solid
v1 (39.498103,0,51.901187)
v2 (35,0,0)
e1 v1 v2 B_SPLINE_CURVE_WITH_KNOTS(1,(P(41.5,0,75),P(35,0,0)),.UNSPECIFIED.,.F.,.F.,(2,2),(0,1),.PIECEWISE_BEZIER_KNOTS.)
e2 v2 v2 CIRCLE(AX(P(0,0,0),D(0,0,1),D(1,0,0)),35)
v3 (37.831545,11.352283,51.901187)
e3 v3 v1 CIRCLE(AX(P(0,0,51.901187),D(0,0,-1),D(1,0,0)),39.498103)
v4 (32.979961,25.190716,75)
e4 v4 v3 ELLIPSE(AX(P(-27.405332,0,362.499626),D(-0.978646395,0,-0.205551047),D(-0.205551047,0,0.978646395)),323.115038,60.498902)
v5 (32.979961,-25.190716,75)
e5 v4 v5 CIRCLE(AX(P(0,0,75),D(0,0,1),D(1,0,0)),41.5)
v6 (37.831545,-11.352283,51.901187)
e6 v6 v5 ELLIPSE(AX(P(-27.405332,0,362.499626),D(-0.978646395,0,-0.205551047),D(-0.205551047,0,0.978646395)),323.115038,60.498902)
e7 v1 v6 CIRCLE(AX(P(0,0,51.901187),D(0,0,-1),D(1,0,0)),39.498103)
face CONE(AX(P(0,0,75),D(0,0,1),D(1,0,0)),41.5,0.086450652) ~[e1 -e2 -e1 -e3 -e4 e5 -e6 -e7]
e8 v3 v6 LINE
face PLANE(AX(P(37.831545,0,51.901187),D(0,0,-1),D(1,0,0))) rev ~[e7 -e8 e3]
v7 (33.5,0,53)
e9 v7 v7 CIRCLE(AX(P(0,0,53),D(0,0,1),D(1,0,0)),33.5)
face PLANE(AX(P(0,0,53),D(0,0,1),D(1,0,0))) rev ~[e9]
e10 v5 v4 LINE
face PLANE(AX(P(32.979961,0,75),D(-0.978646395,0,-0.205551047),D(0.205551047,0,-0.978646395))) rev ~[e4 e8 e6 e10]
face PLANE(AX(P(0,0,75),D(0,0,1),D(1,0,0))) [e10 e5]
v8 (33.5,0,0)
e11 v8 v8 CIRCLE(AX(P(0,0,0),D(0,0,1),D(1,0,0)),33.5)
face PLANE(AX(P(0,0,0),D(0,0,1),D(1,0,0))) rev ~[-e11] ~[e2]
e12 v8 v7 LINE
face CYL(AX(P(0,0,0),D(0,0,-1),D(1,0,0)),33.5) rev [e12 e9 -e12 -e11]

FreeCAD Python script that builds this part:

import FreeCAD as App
import Part
import Sketcher
from FreeCAD import Vector
Q = App.Units.Quantity


def add_polygon(sketch, points):
    """Adds a closed chain of lines whose ends are joined by coincident constraints."""
    first, n = sketch.GeometryCount, len(points)
    for a, b in zip(points, points[1:] + points[:1]):
        sketch.addGeometry(Part.LineSegment(App.Vector(*a, 0), App.Vector(*b, 0)), False)
    for i in range(n):
        sketch.addConstraint(Sketcher.Constraint("Coincident", first + i, 2, first + (i + 1) % n, 1))

doc = App.newDocument("Part")
params = doc.addObject("Spreadsheet::Sheet", "Params")
for row, (alias, value) in enumerate([
    ("sketch1_diameter", "83 mm"),
    ("sketch2_diameter", "70 mm"),
    ("pocket1_length", "55 mm"),
    ("sketch4_diameter", "67 mm"),
    ("pocket2_length", "53 mm"),
], start=1):
    params.set(f"A{row}", alias)
    params.set(f"B{row}", "=" + value)
    params.setAlias(f"B{row}", alias)

body = doc.addObject("PartDesign::Body", "Body")

sketch1 = body.newObject("Sketcher::SketchObject", "Sketch")
sketch1.AttachmentSupport = (doc.getObject("XY_Plane"), [""])
sketch1.MapMode = "FlatFace"
sketch1.AttachmentOffset = App.Placement(Vector(0, 0, 75), App.Rotation())
sketch1.addGeometry(Part.Circle(Vector(0, 0, 0), Vector(0, 0, 1), 41.5), False)
sketch1.addConstraint([
    Sketcher.Constraint("Coincident", 0, 3, -1, 1),
    Sketcher.Constraint("Diameter", 0, Q("83 mm")),
])
sketch1.setExpression("Constraints[1]", "Params.sketch1_diameter")

sketch2 = body.newObject("Sketcher::SketchObject", "Sketch001")
sketch2.AttachmentSupport = (doc.getObject("XY_Plane"), [""])
sketch2.MapMode = "FlatFace"
sketch2.addGeometry(Part.Circle(Vector(0, 0, 0), Vector(0, 0, 1), 35), False)
sketch2.addConstraint([
    Sketcher.Constraint("Coincident", 0, 3, -1, 1),
    Sketcher.Constraint("Diameter", 0, Q("70 mm")),
])
sketch2.setExpression("Constraints[1]", "Params.sketch2_diameter")

additiveloft = body.newObject("PartDesign::AdditiveLoft", "AdditiveLoft")
additiveloft.Profile = sketch1
additiveloft.Sections = [sketch2]

sketch3 = body.newObject("Sketcher::SketchObject", "Sketch002")
sketch3.AttachmentSupport = (doc.getObject("XZ_Plane"), [""])
sketch3.MapMode = "FlatFace"
add_polygon(sketch3, [(32.979961, 75), (37.831545, 51.901187), (40.54823, 51.901187), (42.30484, 75)])
sketch3.addConstraint([
    Sketcher.Constraint("Horizontal", 1),
    Sketcher.Constraint("Horizontal", 3),
    Sketcher.Constraint("DistanceY", -1, 1, 2, 2, Q("75 mm")),
    Sketcher.Constraint("DistanceX", 3, 2, 3, 1, Q("9.324879 mm")),
    Sketcher.Constraint("Distance", 0, Q("23.602818 mm")),
    Sketcher.Constraint("Distance", 2, Q("23.16551 mm")),
    Sketcher.Constraint("DistanceX", 1, 1, 1, 2, Q("2.716685 mm")),
    Sketcher.Constraint("DistanceX", -1, 1, 1, 2, Q("40.54823 mm")),
])
pocket1 = body.newObject("PartDesign::Pocket", "Pocket")
pocket1.Profile = sketch3
pocket1.setExpression("Length", "Params.pocket1_length")
pocket1.Midplane = True

sketch4 = body.newObject("Sketcher::SketchObject", "Sketch003")
sketch4.AttachmentSupport = (doc.getObject("XY_Plane"), [""])
sketch4.MapMode = "FlatFace"
sketch4.addGeometry(Part.Circle(Vector(0, 0, 0), Vector(0, 0, 1), 33.5), False)
sketch4.addConstraint([
    Sketcher.Constraint("Coincident", 0, 3, -1, 1),
    Sketcher.Constraint("Diameter", 0, Q("67 mm")),
])
sketch4.setExpression("Constraints[1]", "Params.sketch4_diameter")
pocket2 = body.newObject("PartDesign::Pocket", "Pocket001")
pocket2.Profile = sketch4
pocket2.setExpression("Length", "Params.pocket2_length")
pocket2.Reversed = True

doc.recompute()
